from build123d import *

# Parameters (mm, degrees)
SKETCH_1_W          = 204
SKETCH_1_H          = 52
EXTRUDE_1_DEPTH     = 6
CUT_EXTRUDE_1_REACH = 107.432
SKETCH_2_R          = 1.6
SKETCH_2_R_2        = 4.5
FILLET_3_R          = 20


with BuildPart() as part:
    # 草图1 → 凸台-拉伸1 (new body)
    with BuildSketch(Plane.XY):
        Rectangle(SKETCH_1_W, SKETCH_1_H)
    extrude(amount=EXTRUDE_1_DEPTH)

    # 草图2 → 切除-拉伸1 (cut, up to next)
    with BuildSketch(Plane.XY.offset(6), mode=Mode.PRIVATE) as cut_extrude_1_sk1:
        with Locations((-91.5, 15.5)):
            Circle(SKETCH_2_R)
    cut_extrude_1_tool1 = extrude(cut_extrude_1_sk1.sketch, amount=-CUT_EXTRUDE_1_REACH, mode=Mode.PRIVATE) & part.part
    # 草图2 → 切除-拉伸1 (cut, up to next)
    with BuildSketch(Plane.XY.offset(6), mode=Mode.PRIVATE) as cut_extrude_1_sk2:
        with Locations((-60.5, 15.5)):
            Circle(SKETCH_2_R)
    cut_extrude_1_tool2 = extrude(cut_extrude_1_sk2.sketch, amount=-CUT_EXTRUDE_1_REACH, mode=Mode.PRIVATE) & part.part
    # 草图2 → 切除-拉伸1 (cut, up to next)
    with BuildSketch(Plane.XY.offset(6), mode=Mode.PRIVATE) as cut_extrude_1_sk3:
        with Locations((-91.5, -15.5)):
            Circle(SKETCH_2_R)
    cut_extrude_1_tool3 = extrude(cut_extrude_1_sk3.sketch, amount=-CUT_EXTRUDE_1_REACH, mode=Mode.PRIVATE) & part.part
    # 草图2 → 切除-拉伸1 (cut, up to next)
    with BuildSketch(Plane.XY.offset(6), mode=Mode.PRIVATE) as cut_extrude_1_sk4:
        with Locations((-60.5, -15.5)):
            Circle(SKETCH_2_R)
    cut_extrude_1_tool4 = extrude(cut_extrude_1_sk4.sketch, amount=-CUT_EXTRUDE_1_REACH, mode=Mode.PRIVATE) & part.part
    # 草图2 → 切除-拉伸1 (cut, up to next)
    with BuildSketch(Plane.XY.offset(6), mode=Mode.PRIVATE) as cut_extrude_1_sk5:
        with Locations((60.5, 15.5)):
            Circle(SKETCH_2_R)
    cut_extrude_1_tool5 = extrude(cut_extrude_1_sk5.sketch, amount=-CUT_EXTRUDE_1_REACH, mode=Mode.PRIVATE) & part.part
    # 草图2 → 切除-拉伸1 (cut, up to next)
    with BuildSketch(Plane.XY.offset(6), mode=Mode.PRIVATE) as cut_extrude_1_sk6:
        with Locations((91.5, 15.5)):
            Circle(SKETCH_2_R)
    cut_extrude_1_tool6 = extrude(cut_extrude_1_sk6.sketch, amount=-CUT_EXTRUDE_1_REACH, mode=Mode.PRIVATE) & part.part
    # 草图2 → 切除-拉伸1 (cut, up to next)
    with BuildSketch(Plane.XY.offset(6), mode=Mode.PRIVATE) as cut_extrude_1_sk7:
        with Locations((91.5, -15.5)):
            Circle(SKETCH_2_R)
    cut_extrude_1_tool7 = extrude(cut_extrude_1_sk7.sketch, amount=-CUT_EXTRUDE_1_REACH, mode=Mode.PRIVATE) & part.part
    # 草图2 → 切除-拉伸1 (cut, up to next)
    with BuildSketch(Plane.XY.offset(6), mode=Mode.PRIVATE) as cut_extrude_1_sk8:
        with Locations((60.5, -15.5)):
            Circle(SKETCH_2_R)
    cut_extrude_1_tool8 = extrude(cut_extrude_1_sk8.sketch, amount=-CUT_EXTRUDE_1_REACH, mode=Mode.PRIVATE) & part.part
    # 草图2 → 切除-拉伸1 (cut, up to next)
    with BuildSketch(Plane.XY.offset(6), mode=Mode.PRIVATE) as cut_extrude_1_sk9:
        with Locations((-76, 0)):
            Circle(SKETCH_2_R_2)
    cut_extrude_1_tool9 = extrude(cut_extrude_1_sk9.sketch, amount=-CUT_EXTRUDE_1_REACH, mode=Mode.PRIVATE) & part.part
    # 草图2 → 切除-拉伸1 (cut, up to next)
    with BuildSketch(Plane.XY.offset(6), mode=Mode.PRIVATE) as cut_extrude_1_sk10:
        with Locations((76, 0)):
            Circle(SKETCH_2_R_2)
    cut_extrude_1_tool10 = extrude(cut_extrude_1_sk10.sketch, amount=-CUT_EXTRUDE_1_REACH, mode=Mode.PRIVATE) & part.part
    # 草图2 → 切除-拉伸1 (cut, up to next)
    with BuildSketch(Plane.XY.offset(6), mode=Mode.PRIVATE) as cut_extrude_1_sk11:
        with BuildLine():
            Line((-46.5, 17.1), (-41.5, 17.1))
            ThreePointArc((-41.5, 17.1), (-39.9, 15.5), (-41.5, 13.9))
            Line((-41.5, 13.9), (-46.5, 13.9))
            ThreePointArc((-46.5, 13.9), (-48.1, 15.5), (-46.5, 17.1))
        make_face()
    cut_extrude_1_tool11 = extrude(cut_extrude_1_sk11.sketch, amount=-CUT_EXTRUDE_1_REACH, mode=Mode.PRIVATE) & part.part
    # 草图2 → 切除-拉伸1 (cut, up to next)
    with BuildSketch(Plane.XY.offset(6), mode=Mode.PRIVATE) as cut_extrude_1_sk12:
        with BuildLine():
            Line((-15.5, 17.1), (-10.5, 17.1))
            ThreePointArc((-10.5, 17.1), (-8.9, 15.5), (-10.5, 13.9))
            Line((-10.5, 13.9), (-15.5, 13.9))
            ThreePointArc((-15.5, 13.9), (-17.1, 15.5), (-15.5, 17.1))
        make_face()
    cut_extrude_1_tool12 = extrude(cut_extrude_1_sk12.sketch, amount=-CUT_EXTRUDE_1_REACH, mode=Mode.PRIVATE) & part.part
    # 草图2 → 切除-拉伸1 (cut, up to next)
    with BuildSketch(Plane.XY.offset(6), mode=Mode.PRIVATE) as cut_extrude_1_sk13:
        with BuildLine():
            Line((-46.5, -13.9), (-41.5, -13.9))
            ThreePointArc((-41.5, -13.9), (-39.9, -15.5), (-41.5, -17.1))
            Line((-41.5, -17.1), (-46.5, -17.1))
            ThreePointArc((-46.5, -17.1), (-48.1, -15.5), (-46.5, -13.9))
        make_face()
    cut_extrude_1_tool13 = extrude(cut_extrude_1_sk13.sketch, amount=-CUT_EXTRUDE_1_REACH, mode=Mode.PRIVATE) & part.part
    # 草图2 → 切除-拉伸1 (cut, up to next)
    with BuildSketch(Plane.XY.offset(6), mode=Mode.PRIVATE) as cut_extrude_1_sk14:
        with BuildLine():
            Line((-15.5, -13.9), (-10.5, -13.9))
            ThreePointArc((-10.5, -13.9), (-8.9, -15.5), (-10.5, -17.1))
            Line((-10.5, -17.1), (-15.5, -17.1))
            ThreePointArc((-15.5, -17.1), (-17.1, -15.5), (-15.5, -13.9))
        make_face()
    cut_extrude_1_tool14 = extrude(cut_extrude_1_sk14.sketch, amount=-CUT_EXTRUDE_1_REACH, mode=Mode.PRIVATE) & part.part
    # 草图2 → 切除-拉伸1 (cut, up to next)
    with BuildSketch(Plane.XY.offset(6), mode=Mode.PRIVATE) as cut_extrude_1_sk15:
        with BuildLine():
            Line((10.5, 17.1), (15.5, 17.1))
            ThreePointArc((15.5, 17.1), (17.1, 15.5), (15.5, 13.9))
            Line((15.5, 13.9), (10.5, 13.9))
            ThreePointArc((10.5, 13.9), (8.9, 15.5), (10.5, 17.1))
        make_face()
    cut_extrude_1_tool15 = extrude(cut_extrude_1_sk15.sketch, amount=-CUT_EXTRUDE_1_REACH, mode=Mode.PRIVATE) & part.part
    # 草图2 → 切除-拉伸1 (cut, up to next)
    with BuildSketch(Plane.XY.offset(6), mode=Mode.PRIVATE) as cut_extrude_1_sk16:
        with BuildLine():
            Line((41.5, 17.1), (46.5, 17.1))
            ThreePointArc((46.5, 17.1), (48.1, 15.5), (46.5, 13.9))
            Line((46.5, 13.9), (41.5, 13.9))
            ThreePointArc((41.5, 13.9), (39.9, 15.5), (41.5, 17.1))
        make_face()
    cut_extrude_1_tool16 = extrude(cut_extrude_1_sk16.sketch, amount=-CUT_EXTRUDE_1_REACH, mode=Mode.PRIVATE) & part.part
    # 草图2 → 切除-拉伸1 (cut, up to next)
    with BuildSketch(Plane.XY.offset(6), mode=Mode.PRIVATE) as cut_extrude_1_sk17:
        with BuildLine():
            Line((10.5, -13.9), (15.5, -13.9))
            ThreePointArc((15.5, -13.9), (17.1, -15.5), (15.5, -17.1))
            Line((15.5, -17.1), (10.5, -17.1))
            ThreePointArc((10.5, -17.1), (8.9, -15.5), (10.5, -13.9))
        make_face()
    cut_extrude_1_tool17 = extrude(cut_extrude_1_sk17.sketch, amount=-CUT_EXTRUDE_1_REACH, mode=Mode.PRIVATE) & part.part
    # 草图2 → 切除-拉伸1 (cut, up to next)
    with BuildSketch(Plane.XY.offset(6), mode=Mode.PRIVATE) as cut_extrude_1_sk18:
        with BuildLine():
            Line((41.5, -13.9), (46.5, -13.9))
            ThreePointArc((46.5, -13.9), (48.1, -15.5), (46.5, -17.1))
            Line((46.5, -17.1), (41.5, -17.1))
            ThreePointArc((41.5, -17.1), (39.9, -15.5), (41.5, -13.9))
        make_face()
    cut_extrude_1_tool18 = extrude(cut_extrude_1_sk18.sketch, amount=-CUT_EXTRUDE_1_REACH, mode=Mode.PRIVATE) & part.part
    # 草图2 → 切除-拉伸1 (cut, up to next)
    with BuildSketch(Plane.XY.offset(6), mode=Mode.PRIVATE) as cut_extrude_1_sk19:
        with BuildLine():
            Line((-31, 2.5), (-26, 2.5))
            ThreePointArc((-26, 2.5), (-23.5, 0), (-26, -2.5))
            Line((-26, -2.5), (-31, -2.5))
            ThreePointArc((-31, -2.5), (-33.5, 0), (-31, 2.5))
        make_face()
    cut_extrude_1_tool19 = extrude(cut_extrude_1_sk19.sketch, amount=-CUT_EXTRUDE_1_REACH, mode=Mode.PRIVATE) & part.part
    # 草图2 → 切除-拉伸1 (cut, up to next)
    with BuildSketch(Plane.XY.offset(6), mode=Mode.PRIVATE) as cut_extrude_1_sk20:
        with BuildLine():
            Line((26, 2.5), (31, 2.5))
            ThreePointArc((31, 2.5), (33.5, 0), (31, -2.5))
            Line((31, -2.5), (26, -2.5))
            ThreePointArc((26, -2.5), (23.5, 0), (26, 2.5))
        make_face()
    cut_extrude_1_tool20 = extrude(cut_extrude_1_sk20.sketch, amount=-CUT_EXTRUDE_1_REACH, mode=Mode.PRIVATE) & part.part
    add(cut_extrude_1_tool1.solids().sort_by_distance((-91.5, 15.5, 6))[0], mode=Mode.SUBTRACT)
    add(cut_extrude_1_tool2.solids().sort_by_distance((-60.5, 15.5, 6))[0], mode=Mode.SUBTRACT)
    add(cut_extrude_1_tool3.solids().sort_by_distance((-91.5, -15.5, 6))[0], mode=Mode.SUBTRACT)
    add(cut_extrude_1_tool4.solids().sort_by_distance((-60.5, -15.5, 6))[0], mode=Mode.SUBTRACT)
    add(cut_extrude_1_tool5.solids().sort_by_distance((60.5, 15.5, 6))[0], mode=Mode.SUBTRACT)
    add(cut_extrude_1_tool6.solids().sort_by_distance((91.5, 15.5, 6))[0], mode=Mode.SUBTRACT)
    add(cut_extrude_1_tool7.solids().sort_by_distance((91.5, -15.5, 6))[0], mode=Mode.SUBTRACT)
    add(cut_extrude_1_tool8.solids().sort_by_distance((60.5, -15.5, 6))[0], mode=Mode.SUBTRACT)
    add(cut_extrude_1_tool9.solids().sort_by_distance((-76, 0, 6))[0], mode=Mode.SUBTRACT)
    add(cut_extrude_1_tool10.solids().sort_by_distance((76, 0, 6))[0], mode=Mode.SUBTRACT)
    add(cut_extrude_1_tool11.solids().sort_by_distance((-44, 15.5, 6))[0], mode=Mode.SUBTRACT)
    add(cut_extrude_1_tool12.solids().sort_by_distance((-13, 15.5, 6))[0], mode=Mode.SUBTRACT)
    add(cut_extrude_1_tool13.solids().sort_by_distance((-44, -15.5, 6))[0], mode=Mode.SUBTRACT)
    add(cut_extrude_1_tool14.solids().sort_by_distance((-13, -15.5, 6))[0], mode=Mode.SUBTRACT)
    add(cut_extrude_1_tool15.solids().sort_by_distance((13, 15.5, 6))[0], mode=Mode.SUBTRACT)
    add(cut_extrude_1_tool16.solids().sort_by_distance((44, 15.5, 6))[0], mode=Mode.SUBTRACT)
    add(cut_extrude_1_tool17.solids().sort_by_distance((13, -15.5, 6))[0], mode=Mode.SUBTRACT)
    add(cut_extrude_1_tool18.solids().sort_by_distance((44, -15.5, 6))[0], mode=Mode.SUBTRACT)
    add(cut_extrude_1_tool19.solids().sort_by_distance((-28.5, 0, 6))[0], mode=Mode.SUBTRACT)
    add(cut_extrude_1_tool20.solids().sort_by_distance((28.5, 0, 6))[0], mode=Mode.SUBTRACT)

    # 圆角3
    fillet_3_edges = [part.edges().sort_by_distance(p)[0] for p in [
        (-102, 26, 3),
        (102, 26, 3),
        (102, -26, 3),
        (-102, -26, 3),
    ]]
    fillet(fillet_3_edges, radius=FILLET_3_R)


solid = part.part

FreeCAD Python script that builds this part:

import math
import FreeCAD as App
import Part
import Sketcher


def edges_at(feature, points):
    """Names of the edges that pass closest to the given points."""
    edges = feature.Shape.Edges
    near = lambda p: min(range(len(edges)), key=lambda i: edges[i].distToShape(Part.Vertex(*p))[0])
    return sorted({f"Edge{near(p) + 1}" for p in points})


def add_polygon(sketch, points):
    """Adds a closed chain of lines whose ends are joined by coincident constraints."""
    first, n = sketch.GeometryCount, len(points)
    for a, b in zip(points, points[1:] + points[:1]):
        sketch.addGeometry(Part.LineSegment(App.Vector(*a, 0), App.Vector(*b, 0)), False)
    for i in range(n):
        sketch.addConstraint(Sketcher.Constraint("Coincident", first + i, 2, first + (i + 1) % n, 1))

doc = App.newDocument("Part")
params = doc.addObject("Spreadsheet::Sheet", "Params")
for row, (alias, value) in enumerate([
    ("sketch1_width", "204 mm"),
    ("sketch1_height", "52 mm"),
    ("pad1_length", "6 mm"),
    ("sketch2_diameter", "3.2 mm"),
    ("sketch3_diameter", "3.2 mm"),
    ("sketch4_diameter", "3.2 mm"),
    ("sketch5_diameter", "3.2 mm"),
    ("sketch6_diameter", "3.2 mm"),
    ("sketch7_diameter", "3.2 mm"),
    ("sketch8_diameter", "3.2 mm"),
    ("sketch9_diameter", "3.2 mm"),
    ("sketch10_diameter", "9 mm"),
    ("sketch11_diameter", "9 mm"),
    ("sketch12_radius", "1.6 mm"),
    ("sketch12_width", "5 mm"),
    ("sketch13_radius", "1.6 mm"),
    ("sketch13_width", "5 mm"),
    ("sketch14_radius", "1.6 mm"),
    ("sketch14_width", "5 mm"),
    ("sketch15_radius", "1.6 mm"),
    ("sketch15_width", "5 mm"),
    ("sketch16_radius", "1.6 mm"),
    ("sketch16_width", "5 mm"),
    ("sketch17_radius", "1.6 mm"),
    ("sketch17_width", "5 mm"),
    ("sketch18_radius", "1.6 mm"),
    ("sketch18_width", "5 mm"),
    ("sketch19_radius", "1.6 mm"),
    ("sketch19_width", "5 mm"),
    ("sketch20_radius", "2.5 mm"),
    ("sketch20_width", "5 mm"),
    ("sketch21_radius", "2.5 mm"),
    ("sketch21_width", "5 mm"),
    ("fillet_radius", "20 mm"),
], start=1):
    params.set(f"A{row}", alias)
    params.set(f"B{row}", "=" + value)
    params.setAlias(f"B{row}", alias)

body = doc.addObject("PartDesign::Body", "Body")

# Sketch on XY plane
sketch1 = doc.addObject("Sketcher::SketchObject", "Sketch")
body.addObject(sketch1)
sketch1.AttachmentSupport = (doc.XY_Plane, [""])
sketch1.MapMode = "FlatFace"
add_polygon(sketch1, [(-102, 26), (-102, -26), (102, -26), (102, 26)])  # lines 0-3
sketch1.addConstraint(Sketcher.Constraint("Vertical", 0))
sketch1.addConstraint(Sketcher.Constraint("Horizontal", 1))
sketch1.addConstraint(Sketcher.Constraint("Vertical", 2))
sketch1.addConstraint(Sketcher.Constraint("Horizontal", 3))
sketch1.addConstraint(Sketcher.Constraint("Symmetric", 0, 2, 2, 2, -1, 1))
sketch1.addConstraint(Sketcher.Constraint("DistanceX", 1, 1, 1, 2, 204.0))
sketch1.addConstraint(Sketcher.Constraint("DistanceY", 0, 2, 0, 1, 52.0))
sketch1.setExpression("Constraints[9]", "Params.sketch1_width")
sketch1.setExpression("Constraints[10]", "Params.sketch1_height")
pad1 = doc.addObject("PartDesign::Pad", "Pad")
body.addObject(pad1)
pad1.Profile = sketch1
pad1.setExpression("Length", "Params.pad1_length")

# Sketch on XY plane
sketch2 = doc.addObject("Sketcher::SketchObject", "Sketch001")
body.addObject(sketch2)
sketch2.AttachmentSupport = (doc.XY_Plane, [""])
sketch2.MapMode = "FlatFace"
sketch2.AttachmentOffset = App.Placement(App.Vector(0, 0, 6), App.Rotation())
sketch2.addGeometry(Part.Circle(App.Vector(-91.5, 15.5, 0), App.Vector(0, 0, 1), 1.6), False)
sketch2.addConstraint(Sketcher.Constraint("Diameter", 0, 3.2))
sketch2.addConstraint(Sketcher.Constraint("DistanceX", 0, 3, -1, 1, 91.5))
sketch2.addConstraint(Sketcher.Constraint("DistanceY", -1, 1, 0, 3, 15.5))
sketch2.setExpression("Constraints[0]", "Params.sketch2_diameter")
pocket1 = doc.addObject("PartDesign::Pocket", "Pocket")
body.addObject(pocket1)
pocket1.Profile = sketch2
pocket1.Type = "UpToFirst"

# Sketch on XY plane
sketch3 = doc.addObject("Sketcher::SketchObject", "Sketch002")
body.addObject(sketch3)
sketch3.AttachmentSupport = (doc.XY_Plane, [""])
sketch3.MapMode = "FlatFace"
sketch3.AttachmentOffset = App.Placement(App.Vector(0, 0, 6), App.Rotation())
sketch3.addGeometry(Part.Circle(App.Vector(-60.5, 15.5, 0), App.Vector(0, 0, 1), 1.6), False)
sketch3.addConstraint(Sketcher.Constraint("Diameter", 0, 3.2))
sketch3.addConstraint(Sketcher.Constraint("DistanceX", 0, 3, -1, 1, 60.5))
sketch3.addConstraint(Sketcher.Constraint("DistanceY", -1, 1, 0, 3, 15.5))
sketch3.setExpression("Constraints[0]", "Params.sketch3_diameter")
pocket2 = doc.addObject("PartDesign::Pocket", "Pocket001")
body.addObject(pocket2)
pocket2.Profile = sketch3
pocket2.Type = "UpToFirst"

# Sketch on XY plane
sketch4 = doc.addObject("Sketcher::SketchObject", "Sketch003")
body.addObject(sketch4)
sketch4.AttachmentSupport = (doc.XY_Plane, [""])
sketch4.MapMode = "FlatFace"
sketch4.AttachmentOffset = App.Placement(App.Vector(0, 0, 6), App.Rotation())
sketch4.addGeometry(Part.Circle(App.Vector(-91.5, -15.5, 0), App.Vector(0, 0, 1), 1.6), False)
sketch4.addConstraint(Sketcher.Constraint("Diameter", 0, 3.2))
sketch4.addConstraint(Sketcher.Constraint("DistanceX", 0, 3, -1, 1, 91.5))
sketch4.addConstraint(Sketcher.Constraint("DistanceY", 0, 3, -1, 1, 15.5))
sketch4.setExpression("Constraints[0]", "Params.sketch4_diameter")
pocket3 = doc.addObject("PartDesign::Pocket", "Pocket002")
body.addObject(pocket3)
pocket3.Profile = sketch4
pocket3.Type = "UpToFirst"

# Sketch on XY plane
sketch5 = doc.addObject("Sketcher::SketchObject", "Sketch004")
body.addObject(sketch5)
sketch5.AttachmentSupport = (doc.XY_Plane, [""])
sketch5.MapMode = "FlatFace"
sketch5.AttachmentOffset = App.Placement(App.Vector(0, 0, 6), App.Rotation())
sketch5.addGeometry(Part.Circle(App.Vector(-60.5, -15.5, 0), App.Vector(0, 0, 1), 1.6), False)
sketch5.addConstraint(Sketcher.Constraint("Diameter", 0, 3.2))
sketch5.addConstraint(Sketcher.Constraint("DistanceX", 0, 3, -1, 1, 60.5))
sketch5.addConstraint(Sketcher.Constraint("DistanceY", 0, 3, -1, 1, 15.5))
sketch5.setExpression("Constraints[0]", "Params.sketch5_diameter")
pocket4 = doc.addObject("PartDesign::Pocket", "Pocket003")
body.addObject(pocket4)
pocket4.Profile = sketch5
pocket4.Type = "UpToFirst"

# Sketch on XY plane
sketch6 = doc.addObject("Sketcher::SketchObject", "Sketch005")
body.addObject(sketch6)
sketch6.AttachmentSupport = (doc.XY_Plane, [""])
sketch6.MapMode = "FlatFace"
sketch6.AttachmentOffset = App.Placement(App.Vector(0, 0, 6), App.Rotation())
sketch6.addGeometry(Part.Circle(App.Vector(60.5, 15.5, 0), App.Vector(0, 0, 1), 1.6), False)
sketch6.addConstraint(Sketcher.Constraint("Diameter", 0, 3.2))
sketch6.addConstraint(Sketcher.Constraint("DistanceX", -1, 1, 0, 3, 60.5))
sketch6.addConstraint(Sketcher.Constraint("DistanceY", -1, 1, 0, 3, 15.5))
sketch6.setExpression("Constraints[0]", "Params.sketch6_diameter")
pocket5 = doc.addObject("PartDesign::Pocket", "Pocket004")
body.addObject(pocket5)
pocket5.Profile = sketch6
pocket5.Type = "UpToFirst"

# Sketch on XY plane
sketch7 = doc.addObject("Sketcher::SketchObject", "Sketch006")
body.addObject(sketch7)
sketch7.AttachmentSupport = (doc.XY_Plane, [""])
sketch7.MapMode = "FlatFace"
sketch7.AttachmentOffset = App.Placement(App.Vector(0, 0, 6), App.Rotation())
sketch7.addGeometry(Part.Circle(App.Vector(91.5, 15.5, 0), App.Vector(0, 0, 1), 1.6), False)
sketch7.addConstraint(Sketcher.Constraint("Diameter", 0, 3.2))
sketch7.addConstraint(Sketcher.Constraint("DistanceX", -1, 1, 0, 3, 91.5))
sketch7.addConstraint(Sketcher.Constraint("DistanceY", -1, 1, 0, 3, 15.5))
sketch7.setExpression("Constraints[0]", "Params.sketch7_diameter")
pocket6 = doc.addObject("PartDesign::Pocket", "Pocket005")
body.addObject(pocket6)
pocket6.Profile = sketch7
pocket6.Type = "UpToFirst"

# Sketch on XY plane
sketch8 = doc.addObject("Sketcher::SketchObject", "Sketch007")
body.addObject(sketch8)
sketch8.AttachmentSupport = (doc.XY_Plane, [""])
sketch8.MapMode = "FlatFace"
sketch8.AttachmentOffset = App.Placement(App.Vector(0, 0, 6), App.Rotation())
sketch8.addGeometry(Part.Circle(App.Vector(91.5, -15.5, 0), App.Vector(0, 0, 1), 1.6), False)
sketch8.addConstraint(Sketcher.Constraint("Diameter", 0, 3.2))
sketch8.addConstraint(Sketcher.Constraint("DistanceX", -1, 1, 0, 3, 91.5))
sketch8.addConstraint(Sketcher.Constraint("DistanceY", 0, 3, -1, 1, 15.5))
sketch8.setExpression("Constraints[0]", "Params.sketch8_diameter")
pocket7 = doc.addObject("PartDesign::Pocket", "Pocket006")
body.addObject(pocket7)
pocket7.Profile = sketch8
pocket7.Type = "UpToFirst"

# Sketch on XY plane
sketch9 = doc.addObject("Sketcher::SketchObject", "Sketch008")
body.addObject(sketch9)
sketch9.AttachmentSupport = (doc.XY_Plane, [""])
sketch9.MapMode = "FlatFace"
sketch9.AttachmentOffset = App.Placement(App.Vector(0, 0, 6), App.Rotation())
sketch9.addGeometry(Part.Circle(App.Vector(60.5, -15.5, 0), App.Vector(0, 0, 1), 1.6), False)
sketch9.addConstraint(Sketcher.Constraint("Diameter", 0, 3.2))
sketch9.addConstraint(Sketcher.Constraint("DistanceX", -1, 1, 0, 3, 60.5))
sketch9.addConstraint(Sketcher.Constraint("DistanceY", 0, 3, -1, 1, 15.5))
sketch9.setExpression("Constraints[0]", "Params.sketch9_diameter")
pocket8 = doc.addObject("PartDesign::Pocket", "Pocket007")
body.addObject(pocket8)
pocket8.Profile = sketch9
pocket8.Type = "UpToFirst"

# Sketch on XY plane
sketch10 = doc.addObject("Sketcher::SketchObject", "Sketch009")
body.addObject(sketch10)
sketch10.AttachmentSupport = (doc.XY_Plane, [""])
sketch10.MapMode = "FlatFace"
sketch10.AttachmentOffset = App.Placement(App.Vector(0, 0, 6), App.Rotation())
sketch10.addGeometry(Part.Circle(App.Vector(-76, 0, 0), App.Vector(0, 0, 1), 4.5), False)
sketch10.addConstraint(Sketcher.Constraint("PointOnObject", 0, 3, -1))
sketch10.addConstraint(Sketcher.Constraint("Diameter", 0, 9.0))
sketch10.addConstraint(Sketcher.Constraint("DistanceX", 0, 3, -1, 1, 76.0))
sketch10.setExpression("Constraints[1]", "Params.sketch10_diameter")
pocket9 = doc.addObject("PartDesign::Pocket", "Pocket008")
body.addObject(pocket9)
pocket9.Profile = sketch10
pocket9.Type = "UpToFirst"

# Sketch on XY plane
sketch11 = doc.addObject("Sketcher::SketchObject", "Sketch010")
body.addObject(sketch11)
sketch11.AttachmentSupport = (doc.XY_Plane, [""])
sketch11.MapMode = "FlatFace"
sketch11.AttachmentOffset = App.Placement(App.Vector(0, 0, 6), App.Rotation())
sketch11.addGeometry(Part.Circle(App.Vector(76, 0, 0), App.Vector(0, 0, 1), 4.5), False)
sketch11.addConstraint(Sketcher.Constraint("PointOnObject", 0, 3, -1))
sketch11.addConstraint(Sketcher.Constraint("Diameter", 0, 9.0))
sketch11.addConstraint(Sketcher.Constraint("DistanceX", -1, 1, 0, 3, 76.0))
sketch11.setExpression("Constraints[1]", "Params.sketch11_diameter")
pocket10 = doc.addObject("PartDesign::Pocket", "Pocket009")
body.addObject(pocket10)
pocket10.Profile = sketch11
pocket10.Type = "UpToFirst"

# Sketch on XY plane
sketch12 = doc.addObject("Sketcher::SketchObject", "Sketch011")
body.addObject(sketch12)
sketch12.AttachmentSupport = (doc.XY_Plane, [""])
sketch12.MapMode = "FlatFace"
sketch12.AttachmentOffset = App.Placement(App.Vector(0, 0, 6), App.Rotation())
sketch12.addGeometry(Part.LineSegment(App.Vector(-41.5, 17.1, 0), App.Vector(-46.5, 17.1, 0)), False)
sketch12.addGeometry(Part.ArcOfCircle(Part.Circle(App.Vector(-46.5, 15.5, 0), App.Vector(0, 0, 1), 1.6), math.radians(90), math.radians(270)), False)
sketch12.addGeometry(Part.LineSegment(App.Vector(-46.5, 13.9, 0), App.Vector(-41.5, 13.9, 0)), False)
sketch12.addGeometry(Part.ArcOfCircle(Part.Circle(App.Vector(-41.5, 15.5, 0), App.Vector(0, 0, 1), 1.6), math.radians(-90), math.radians(90)), False)
sketch12.addConstraint(Sketcher.Constraint("Tangent", 0, 2, 1, 1))
sketch12.addConstraint(Sketcher.Constraint("Tangent", 1, 2, 2, 1))
sketch12.addConstraint(Sketcher.Constraint("Tangent", 2, 2, 3, 1))
sketch12.addConstraint(Sketcher.Constraint("Tangent", 3, 2, 0, 1))
sketch12.addConstraint(Sketcher.Constraint("Horizontal", 0))
sketch12.addConstraint(Sketcher.Constraint("Horizontal", 2))
sketch12.addConstraint(Sketcher.Constraint("Radius", 1, 1.6))
sketch12.addConstraint(Sketcher.Constraint("DistanceX", 0, 2, 0, 1, 5.0))
sketch12.addConstraint(Sketcher.Constraint("DistanceX", 1, 3, -1, 1, 46.5))
sketch12.addConstraint(Sketcher.Constraint("DistanceY", -1, 1, 1, 3, 15.5))
sketch12.setExpression("Constraints[6]", "Params.sketch12_radius")
sketch12.setExpression("Constraints[7]", "Params.sketch12_width")
pocket11 = doc.addObject("PartDesign::Pocket", "Pocket010")
body.addObject(pocket11)
pocket11.Profile = sketch12
pocket11.Type = "UpToFirst"

# Sketch on XY plane
sketch13 = doc.addObject("Sketcher::SketchObject", "Sketch012")
body.addObject(sketch13)
sketch13.AttachmentSupport = (doc.XY_Plane, [""])
sketch13.MapMode = "FlatFace"
sketch13.AttachmentOffset = App.Placement(App.Vector(0, 0, 6), App.Rotation())
sketch13.addGeometry(Part.LineSegment(App.Vector(-10.5, 17.1, 0), App.Vector(-15.5, 17.1, 0)), False)
sketch13.addGeometry(Part.ArcOfCircle(Part.Circle(App.Vector(-15.5, 15.5, 0), App.Vector(0, 0, 1), 1.6), math.radians(90), math.radians(270)), False)
sketch13.addGeometry(Part.LineSegment(App.Vector(-15.5, 13.9, 0), App.Vector(-10.5, 13.9, 0)), False)
sketch13.addGeometry(Part.ArcOfCircle(Part.Circle(App.Vector(-10.5, 15.5, 0), App.Vector(0, 0, 1), 1.6), math.radians(-90), math.radians(90)), False)
sketch13.addConstraint(Sketcher.Constraint("Tangent", 0, 2, 1, 1))
sketch13.addConstraint(Sketcher.Constraint("Tangent", 1, 2, 2, 1))
sketch13.addConstraint(Sketcher.Constraint("Tangent", 2, 2, 3, 1))
sketch13.addConstraint(Sketcher.Constraint("Tangent", 3, 2, 0, 1))
sketch13.addConstraint(Sketcher.Constraint("Horizontal", 0))
sketch13.addConstraint(Sketcher.Constraint("Horizontal", 2))
sketch13.addConstraint(Sketcher.Constraint("Radius", 1, 1.6))
sketch13.addConstraint(Sketcher.Constraint("DistanceX", 0, 2, 0, 1, 5.0))
sketch13.addConstraint(Sketcher.Constraint("DistanceX", 1, 3, -1, 1, 15.5))
sketch13.addConstraint(Sketcher.Constraint("DistanceY", -1, 1, 1, 3, 15.5))
sketch13.setExpression("Constraints[6]", "Params.sketch13_radius")
sketch13.setExpression("Constraints[7]", "Params.sketch13_width")
pocket12 = doc.addObject("PartDesign::Pocket", "Pocket011")
body.addObject(pocket12)
pocket12.Profile = sketch13
pocket12.Type = "UpToFirst"

# Sketch on XY plane
sketch14 = doc.addObject("Sketcher::SketchObject", "Sketch013")
body.addObject(sketch14)
sketch14.AttachmentSupport = (doc.XY_Plane, [""])
sketch14.MapMode = "FlatFace"
sketch14.AttachmentOffset = App.Placement(App.Vector(0, 0, 6), App.Rotation())
sketch14.addGeometry(Part.LineSegment(App.Vector(-41.5, -13.9, 0), App.Vector(-46.5, -13.9, 0)), False)
sketch14.addGeometry(Part.ArcOfCircle(Part.Circle(App.Vector(-46.5, -15.5, 0), App.Vector(0, 0, 1), 1.6), math.radians(90), math.radians(270)), False)
sketch14.addGeometry(Part.LineSegment(App.Vector(-46.5, -17.1, 0), App.Vector(-41.5, -17.1, 0)), False)
sketch14.addGeometry(Part.ArcOfCircle(Part.Circle(App.Vector(-41.5, -15.5, 0), App.Vector(0, 0, 1), 1.6), math.radians(-90), math.radians(90)), False)
sketch14.addConstraint(Sketcher.Constraint("Tangent", 0, 2, 1, 1))
sketch14.addConstraint(Sketcher.Constraint("Tangent", 1, 2, 2, 1))
sketch14.addConstraint(Sketcher.Constraint("Tangent", 2, 2, 3, 1))
sketch14.addConstraint(Sketcher.Constraint("Tangent", 3, 2, 0, 1))
sketch14.addConstraint(Sketcher.Constraint("Horizontal", 0))
sketch14.addConstraint(Sketcher.Constraint("Horizontal", 2))
sketch14.addConstraint(Sketcher.Constraint("Radius", 1, 1.6))
sketch14.addConstraint(Sketcher.Constraint("DistanceX", 0, 2, 0, 1, 5.0))
sketch14.addConstraint(Sketcher.Constraint("DistanceX", 1, 3, -1, 1, 46.5))
sketch14.addConstraint(Sketcher.Constraint("DistanceY", 1, 3, -1, 1, 15.5))
sketch14.setExpression("Constraints[6]", "Params.sketch14_radius")
sketch14.setExpression("Constraints[7]", "Params.sketch14_width")
pocket13 = doc.addObject("PartDesign::Pocket", "Pocket012")
body.addObject(pocket13)
pocket13.Profile = sketch14
pocket13.Type = "UpToFirst"

# Sketch on XY plane
sketch15 = doc.addObject("Sketcher::SketchObject", "Sketch014")
body.addObject(sketch15)
sketch15.AttachmentSupport = (doc.XY_Plane, [""])
sketch15.MapMode = "FlatFace"
sketch15.AttachmentOffset = App.Placement(App.Vector(0, 0, 6), App.Rotation())
sketch15.addGeometry(Part.LineSegment(App.Vector(-10.5, -13.9, 0), App.Vector(-15.5, -13.9, 0)), False)
sketch15.addGeometry(Part.ArcOfCircle(Part.Circle(App.Vector(-15.5, -15.5, 0), App.Vector(0, 0, 1), 1.6), math.radians(90), math.radians(270)), False)
sketch15.addGeometry(Part.LineSegment(App.Vector(-15.5, -17.1, 0), App.Vector(-10.5, -17.1, 0)), False)
sketch15.addGeometry(Part.ArcOfCircle(Part.Circle(App.Vector(-10.5, -15.5, 0), App.Vector(0, 0, 1), 1.6), math.radians(-90), math.radians(90)), False)
sketch15.addConstraint(Sketcher.Constraint("Tangent", 0, 2, 1, 1))
sketch15.addConstraint(Sketcher.Constraint("Tangent", 1, 2, 2, 1))
sketch15.addConstraint(Sketcher.Constraint("Tangent", 2, 2, 3, 1))
sketch15.addConstraint(Sketcher.Constraint("Tangent", 3, 2, 0, 1))
sketch15.addConstraint(Sketcher.Constraint("Horizontal", 0))
sketch15.addConstraint(Sketcher.Constraint("Horizontal", 2))
sketch15.addConstraint(Sketcher.Constraint("Radius", 1, 1.6))
sketch15.addConstraint(Sketcher.Constraint("DistanceX", 0, 2, 0, 1, 5.0))
sketch15.addConstraint(Sketcher.Constraint("DistanceX", 1, 3, -1, 1, 15.5))
sketch15.addConstraint(Sketcher.Constraint("DistanceY", 1, 3, -1, 1, 15.5))
sketch15.setExpression("Constraints[6]", "Params.sketch15_radius")
sketch15.setExpression("Constraints[7]", "Params.sketch15_width")
pocket14 = doc.addObject("PartDesign::Pocket", "Pocket013")
body.addObject(pocket14)
pocket14.Profile = sketch15
pocket14.Type = "UpToFirst"

# Sketch on XY plane
sketch16 = doc.addObject("Sketcher::SketchObject", "Sketch015")
body.addObject(sketch16)
sketch16.AttachmentSupport = (doc.XY_Plane, [""])
sketch16.MapMode = "FlatFace"
sketch16.AttachmentOffset = App.Placement(App.Vector(0, 0, 6), App.Rotation())
sketch16.addGeometry(Part.LineSegment(App.Vector(15.5, 17.1, 0), App.Vector(10.5, 17.1, 0)), False)
sketch16.addGeometry(Part.ArcOfCircle(Part.Circle(App.Vector(10.5, 15.5, 0), App.Vector(0, 0, 1), 1.6), math.radians(90), math.radians(270)), False)
sketch16.addGeometry(Part.LineSegment(App.Vector(10.5, 13.9, 0), App.Vector(15.5, 13.9, 0)), False)
sketch16.addGeometry(Part.ArcOfCircle(Part.Circle(App.Vector(15.5, 15.5, 0), App.Vector(0, 0, 1), 1.6), math.radians(-90), math.radians(90)), False)
sketch16.addConstraint(Sketcher.Constraint("Tangent", 0, 2, 1, 1))
sketch16.addConstraint(Sketcher.Constraint("Tangent", 1, 2, 2, 1))
sketch16.addConstraint(Sketcher.Constraint("Tangent", 2, 2, 3, 1))
sketch16.addConstraint(Sketcher.Constraint("Tangent", 3, 2, 0, 1))
sketch16.addConstraint(Sketcher.Constraint("Horizontal", 0))
sketch16.addConstraint(Sketcher.Constraint("Horizontal", 2))
sketch16.addConstraint(Sketcher.Constraint("Radius", 1, 1.6))
sketch16.addConstraint(Sketcher.Constraint("DistanceX", 0, 2, 0, 1, 5.0))
sketch16.addConstraint(Sketcher.Constraint("DistanceX", -1, 1, 1, 3, 10.5))
sketch16.addConstraint(Sketcher.Constraint("DistanceY", -1, 1, 1, 3, 15.5))
sketch16.setExpression("Constraints[6]", "Params.sketch16_radius")
sketch16.setExpression("Constraints[7]", "Params.sketch16_width")
pocket15 = doc.addObject("PartDesign::Pocket", "Pocket014")
body.addObject(pocket15)
pocket15.Profile = sketch16
pocket15.Type = "UpToFirst"

# Sketch on XY plane
sketch17 = doc.addObject("Sketcher::SketchObject", "Sketch016")
body.addObject(sketch17)
sketch17.AttachmentSupport = (doc.XY_Plane, [""])
sketch17.MapMode = "FlatFace"
sketch17.AttachmentOffset = App.Placement(App.Vector(0, 0, 6), App.Rotation())
sketch17.addGeometry(Part.LineSegment(App.Vector(46.5, 17.1, 0), App.Vector(41.5, 17.1, 0)), False)
sketch17.addGeometry(Part.ArcOfCircle(Part.Circle(App.Vector(41.5, 15.5, 0), App.Vector(0, 0, 1), 1.6), math.radians(90), math.radians(270)), False)
sketch17.addGeometry(Part.LineSegment(App.Vector(41.5, 13.9, 0), App.Vector(46.5, 13.9, 0)), False)
sketch17.addGeometry(Part.ArcOfCircle(Part.Circle(App.Vector(46.5, 15.5, 0), App.Vector(0, 0, 1), 1.6), math.radians(-90), math.radians(90)), False)
sketch17.addConstraint(Sketcher.Constraint("Tangent", 0, 2, 1, 1))
sketch17.addConstraint(Sketcher.Constraint("Tangent", 1, 2, 2, 1))
sketch17.addConstraint(Sketcher.Constraint("Tangent", 2, 2, 3, 1))
sketch17.addConstraint(Sketcher.Constraint("Tangent", 3, 2, 0, 1))
sketch17.addConstraint(Sketcher.Constraint("Horizontal", 0))
sketch17.addConstraint(Sketcher.Constraint("Horizontal", 2))
sketch17.addConstraint(Sketcher.Constraint("Radius", 1, 1.6))
sketch17.addConstraint(Sketcher.Constraint("DistanceX", 0, 2, 0, 1, 5.0))
sketch17.addConstraint(Sketcher.Constraint("DistanceX", -1, 1, 1, 3, 41.5))
sketch17.addConstraint(Sketcher.Constraint("DistanceY", -1, 1, 1, 3, 15.5))
sketch17.setExpression("Constraints[6]", "Params.sketch17_radius")
sketch17.setExpression("Constraints[7]", "Params.sketch17_width")
pocket16 = doc.addObject("PartDesign::Pocket", "Pocket015")
body.addObject(pocket16)
pocket16.Profile = sketch17
pocket16.Type = "UpToFirst"

# Sketch on XY plane
sketch18 = doc.addObject("Sketcher::SketchObject", "Sketch017")
body.addObject(sketch18)
sketch18.AttachmentSupport = (doc.XY_Plane, [""])
sketch18.MapMode = "FlatFace"
sketch18.AttachmentOffset = App.Placement(App.Vector(0, 0, 6), App.Rotation())
sketch18.addGeometry(Part.LineSegment(App.Vector(15.5, -13.9, 0), App.Vector(10.5, -13.9, 0)), False)
sketch18.addGeometry(Part.ArcOfCircle(Part.Circle(App.Vector(10.5, -15.5, 0), App.Vector(0, 0, 1), 1.6), math.radians(90), math.radians(270)), False)
sketch18.addGeometry(Part.LineSegment(App.Vector(10.5, -17.1, 0), App.Vector(15.5, -17.1, 0)), False)
sketch18.addGeometry(Part.ArcOfCircle(Part.Circle(App.Vector(15.5, -15.5, 0), App.Vector(0, 0, 1), 1.6), math.radians(-90), math.radians(90)), False)
sketch18.addConstraint(Sketcher.Constraint("Tangent", 0, 2, 1, 1))
sketch18.addConstraint(Sketcher.Constraint("Tangent", 1, 2, 2, 1))
sketch18.addConstraint(Sketcher.Constraint("Tangent", 2, 2, 3, 1))
sketch18.addConstraint(Sketcher.Constraint("Tangent", 3, 2, 0, 1))
sketch18.addConstraint(Sketcher.Constraint("Horizontal", 0))
sketch18.addConstraint(Sketcher.Constraint("Horizontal", 2))
sketch18.addConstraint(Sketcher.Constraint("Radius", 1, 1.6))
sketch18.addConstraint(Sketcher.Constraint("DistanceX", 0, 2, 0, 1, 5.0))
sketch18.addConstraint(Sketcher.Constraint("DistanceX", -1, 1, 1, 3, 10.5))
sketch18.addConstraint(Sketcher.Constraint("DistanceY", 1, 3, -1, 1, 15.5))
sketch18.setExpression("Constraints[6]", "Params.sketch18_radius")
sketch18.setExpression("Constraints[7]", "Params.sketch18_width")
pocket17 = doc.addObject("PartDesign::Pocket", "Pocket016")
body.addObject(pocket17)
pocket17.Profile = sketch18
pocket17.Type = "UpToFirst"

# Sketch on XY plane
sketch19 = doc.addObject("Sketcher::SketchObject", "Sketch018")
body.addObject(sketch19)
sketch19.AttachmentSupport = (doc.XY_Plane, [""])
sketch19.MapMode = "FlatFace"
sketch19.AttachmentOffset = App.Placement(App.Vector(0, 0, 6), App.Rotation())
sketch19.addGeometry(Part.LineSegment(App.Vector(46.5, -13.9, 0), App.Vector(41.5, -13.9, 0)), False)
sketch19.addGeometry(Part.ArcOfCircle(Part.Circle(App.Vector(41.5, -15.5, 0), App.Vector(0, 0, 1), 1.6), math.radians(90), math.radians(270)), False)
sketch19.addGeometry(Part.LineSegment(App.Vector(41.5, -17.1, 0), App.Vector(46.5, -17.1, 0)), False)
sketch19.addGeometry(Part.ArcOfCircle(Part.Circle(App.Vector(46.5, -15.5, 0), App.Vector(0, 0, 1), 1.6), math.radians(-90), math.radians(90)), False)
sketch19.addConstraint(Sketcher.Constraint("Tangent", 0, 2, 1, 1))
sketch19.addConstraint(Sketcher.Constraint("Tangent", 1, 2, 2, 1))
sketch19.addConstraint(Sketcher.Constraint("Tangent", 2, 2, 3, 1))
sketch19.addConstraint(Sketcher.Constraint("Tangent", 3, 2, 0, 1))
sketch19.addConstraint(Sketcher.Constraint("Horizontal", 0))
sketch19.addConstraint(Sketcher.Constraint("Horizontal", 2))
sketch19.addConstraint(Sketcher.Constraint("Radius", 1, 1.6))
sketch19.addConstraint(Sketcher.Constraint("DistanceX", 0, 2, 0, 1, 5.0))
sketch19.addConstraint(Sketcher.Constraint("DistanceX", -1, 1, 1, 3, 41.5))
sketch19.addConstraint(Sketcher.Constraint("DistanceY", 1, 3, -1, 1, 15.5))
sketch19.setExpression("Constraints[6]", "Params.sketch19_radius")
sketch19.setExpression("Constraints[7]", "Params.sketch19_width")
pocket18 = doc.addObject("PartDesign::Pocket", "Pocket017")
body.addObject(pocket18)
pocket18.Profile = sketch19
pocket18.Type = "UpToFirst"

# Sketch on XY plane
sketch20 = doc.addObject("Sketcher::SketchObject", "Sketch019")
body.addObject(sketch20)
sketch20.AttachmentSupport = (doc.XY_Plane, [""])
sketch20.MapMode = "FlatFace"
sketch20.AttachmentOffset = App.Placement(App.Vector(0, 0, 6), App.Rotation())
sketch20.addGeometry(Part.LineSegment(App.Vector(-26, 2.5, 0), App.Vector(-31, 2.5, 0)), False)
sketch20.addGeometry(Part.ArcOfCircle(Part.Circle(App.Vector(-31, 0, 0), App.Vector(0, 0, 1), 2.5), math.radians(90), math.radians(270)), False)
sketch20.addGeometry(Part.LineSegment(App.Vector(-31, -2.5, 0), App.Vector(-26, -2.5, 0)), False)
sketch20.addGeometry(Part.ArcOfCircle(Part.Circle(App.Vector(-26, 0, 0), App.Vector(0, 0, 1), 2.5), math.radians(-90), math.radians(90)), False)
sketch20.addConstraint(Sketcher.Constraint("Tangent", 0, 2, 1, 1))
sketch20.addConstraint(Sketcher.Constraint("Tangent", 1, 2, 2, 1))
sketch20.addConstraint(Sketcher.Constraint("Tangent", 2, 2, 3, 1))
sketch20.addConstraint(Sketcher.Constraint("Tangent", 3, 2, 0, 1))
sketch20.addConstraint(Sketcher.Constraint("Horizontal", 0))
sketch20.addConstraint(Sketcher.Constraint("Horizontal", 2))
sketch20.addConstraint(Sketcher.Constraint("PointOnObject", 1, 3, -1))
sketch20.addConstraint(Sketcher.Constraint("Radius", 1, 2.5))
sketch20.addConstraint(Sketcher.Constraint("DistanceX", 0, 2, 0, 1, 5.0))
sketch20.addConstraint(Sketcher.Constraint("DistanceX", 1, 3, -1, 1, 31.0))
sketch20.setExpression("Constraints[7]", "Params.sketch20_radius")
sketch20.setExpression("Constraints[8]", "Params.sketch20_width")
pocket19 = doc.addObject("PartDesign::Pocket", "Pocket018")
body.addObject(pocket19)
pocket19.Profile = sketch20
pocket19.Type = "UpToFirst"

# Sketch on XY plane
sketch21 = doc.addObject("Sketcher::SketchObject", "Sketch020")
body.addObject(sketch21)
sketch21.AttachmentSupport = (doc.XY_Plane, [""])
sketch21.MapMode = "FlatFace"
sketch21.AttachmentOffset = App.Placement(App.Vector(0, 0, 6), App.Rotation())
sketch21.addGeometry(Part.LineSegment(App.Vector(31, 2.5, 0), App.Vector(26, 2.5, 0)), False)
sketch21.addGeometry(Part.ArcOfCircle(Part.Circle(App.Vector(26, 0, 0), App.Vector(0, 0, 1), 2.5), math.radians(90), math.radians(270)), False)
sketch21.addGeometry(Part.LineSegment(App.Vector(26, -2.5, 0), App.Vector(31, -2.5, 0)), False)
sketch21.addGeometry(Part.ArcOfCircle(Part.Circle(App.Vector(31, 0, 0), App.Vector(0, 0, 1), 2.5), math.radians(-90), math.radians(90)), False)
sketch21.addConstraint(Sketcher.Constraint("Tangent", 0, 2, 1, 1))
sketch21.addConstraint(Sketcher.Constraint("Tangent", 1, 2, 2, 1))
sketch21.addConstraint(Sketcher.Constraint("Tangent", 2, 2, 3, 1))
sketch21.addConstraint(Sketcher.Constraint("Tangent", 3, 2, 0, 1))
sketch21.addConstraint(Sketcher.Constraint("Horizontal", 0))
sketch21.addConstraint(Sketcher.Constraint("Horizontal", 2))
sketch21.addConstraint(Sketcher.Constraint("PointOnObject", 1, 3, -1))
sketch21.addConstraint(Sketcher.Constraint("Radius", 1, 2.5))
sketch21.addConstraint(Sketcher.Constraint("DistanceX", 0, 2, 0, 1, 5.0))
sketch21.addConstraint(Sketcher.Constraint("DistanceX", -1, 1, 1, 3, 26.0))
sketch21.setExpression("Constraints[7]", "Params.sketch21_radius")
sketch21.setExpression("Constraints[8]", "Params.sketch21_width")
pocket20 = doc.addObject("PartDesign::Pocket", "Pocket019")
body.addObject(pocket20)
pocket20.Profile = sketch21
pocket20.Type = "UpToFirst"
doc.recompute()

fillet = doc.addObject("PartDesign::Fillet", "Fillet")
body.addObject(fillet)
fillet.Base = (pocket20, edges_at(pocket20, [
    (-102, 26, 3),
    (102, 26, 3),
    (102, -26, 3),
    (-102, -26, 3),
]))
fillet.setExpression("Radius", "Params.fillet_radius")

doc.recompute()
